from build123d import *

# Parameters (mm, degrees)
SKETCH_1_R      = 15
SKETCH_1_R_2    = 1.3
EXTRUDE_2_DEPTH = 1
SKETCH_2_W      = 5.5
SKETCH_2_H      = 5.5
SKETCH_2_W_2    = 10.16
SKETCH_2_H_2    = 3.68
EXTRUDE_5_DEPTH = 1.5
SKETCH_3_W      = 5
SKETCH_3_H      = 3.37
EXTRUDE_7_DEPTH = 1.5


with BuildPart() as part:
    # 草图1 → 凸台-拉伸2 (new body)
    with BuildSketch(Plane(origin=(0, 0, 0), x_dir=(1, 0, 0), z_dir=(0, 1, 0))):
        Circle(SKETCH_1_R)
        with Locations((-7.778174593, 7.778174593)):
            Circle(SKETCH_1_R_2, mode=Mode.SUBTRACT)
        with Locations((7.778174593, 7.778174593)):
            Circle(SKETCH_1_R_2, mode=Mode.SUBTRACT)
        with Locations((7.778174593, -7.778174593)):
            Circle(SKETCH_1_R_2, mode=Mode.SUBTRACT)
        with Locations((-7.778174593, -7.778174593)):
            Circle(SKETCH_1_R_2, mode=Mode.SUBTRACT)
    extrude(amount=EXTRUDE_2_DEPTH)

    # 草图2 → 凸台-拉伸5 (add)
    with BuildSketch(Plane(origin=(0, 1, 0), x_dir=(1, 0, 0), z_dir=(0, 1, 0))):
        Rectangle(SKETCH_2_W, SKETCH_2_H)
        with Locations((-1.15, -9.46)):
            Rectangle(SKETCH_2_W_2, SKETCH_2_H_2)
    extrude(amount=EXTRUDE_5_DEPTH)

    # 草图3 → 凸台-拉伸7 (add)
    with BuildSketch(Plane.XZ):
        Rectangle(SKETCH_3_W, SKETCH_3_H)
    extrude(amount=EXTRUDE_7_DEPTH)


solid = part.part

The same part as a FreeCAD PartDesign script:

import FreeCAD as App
import Part
import Sketcher


def add_polygon(sketch, points):
    """Adds a closed chain of lines whose ends are joined by coincident constraints."""
    first, n = sketch.GeometryCount, len(points)
    for a, b in zip(points, points[1:] + points[:1]):
        sketch.addGeometry(Part.LineSegment(App.Vector(*a, 0), App.Vector(*b, 0)), False)
    for i in range(n):
        sketch.addConstraint(Sketcher.Constraint("Coincident", first + i, 2, first + (i + 1) % n, 1))

doc = App.newDocument("Part")
params = doc.addObject("Spreadsheet::Sheet", "Params")
for row, (alias, value) in enumerate([
    ("sketch1_diameter", "30 mm"),
    ("sketch1_diameter2", "2.6 mm"),
    ("pad1_length", "1 mm"),
    ("sketch2_width", "5.5 mm"),
    ("sketch2_width2", "10.16 mm"),
    ("sketch2_height", "3.68 mm"),
    ("pad2_length", "1.5 mm"),
    ("sketch3_width", "5 mm"),
    ("sketch3_height", "3.37 mm"),
    ("pad3_length", "1.5 mm"),
], start=1):
    params.set(f"A{row}", alias)
    params.set(f"B{row}", "=" + value)
    params.setAlias(f"B{row}", alias)

body = doc.addObject("PartDesign::Body", "Body")

# Sketch on XZ plane
sketch1 = body.newObject("Sketcher::SketchObject", "Sketch")
sketch1.AttachmentSupport = (doc.getObject("XZ_Plane"), [""])
sketch1.MapMode = "FlatFace"
sketch1.addGeometry([
    Part.Circle(App.Vector(0, 0, 0), App.Vector(0, 0, 1), 15),  # 0
    Part.Circle(App.Vector(-7.8, 7.8, 0), App.Vector(0, 0, 1), 1.3),  # 1
    Part.Circle(App.Vector(7.8, 7.8, 0), App.Vector(0, 0, 1), 1.3),  # 2
    Part.Circle(App.Vector(-7.8, -7.8, 0), App.Vector(0, 0, 1), 1.3),  # 3
    Part.Circle(App.Vector(7.8, -7.8, 0), App.Vector(0, 0, 1), 1.3),  # 4
], False)
sketch1.addConstraint([
    Sketcher.Constraint("Coincident", 0, 3, -1, 1),
    Sketcher.Constraint("Equal", 1, 2),
    Sketcher.Constraint("Equal", 2, 3),
    Sketcher.Constraint("Equal", 3, 4),
    Sketcher.Constraint("Symmetric", 2, 3, 3, 3, -1, 1),
    Sketcher.Constraint("Symmetric", 1, 3, 4, 3, -1, 1),
    Sketcher.Constraint("Symmetric", 1, 3, 2, 3, -2),
    Sketcher.Constraint("Diameter", 0, 30.0),
    Sketcher.Constraint("Diameter", 1, 2.6),
    Sketcher.Constraint("DistanceX", 1, 3, 2, 3, 15.556349),
    Sketcher.Constraint("DistanceY", 3, 3, 1, 3, 15.556349),
])
sketch1.setExpression("Constraints[7]", "Params.sketch1_diameter")
sketch1.setExpression("Constraints[8]", "Params.sketch1_diameter2")
pad1 = body.newObject("PartDesign::Pad", "Pad")
pad1.Profile = sketch1
pad1.setExpression("Length", "Params.pad1_length")
pad1.Reversed = True

# Sketch on XZ plane
sketch2 = body.newObject("Sketcher::SketchObject", "Sketch001")
sketch2.AttachmentSupport = (doc.getObject("XZ_Plane"), [""])
sketch2.MapMode = "FlatFace"
sketch2.AttachmentOffset = App.Placement(App.Vector(0, 0, -1), App.Rotation())
add_polygon(sketch2, [(-2.8, -2.8), (-2.8, 2.8), (2.8, 2.8), (2.8, -2.8)])  # lines 0-3
add_polygon(sketch2, [(-6.2, 7.6), (-6.2, 11.3), (3.9, 11.3), (3.9, 7.6)])  # lines 4-7
sketch2.addConstraint([
    Sketcher.Constraint("Vertical", 0),
    Sketcher.Constraint("Horizontal", 1),
    Sketcher.Constraint("Vertical", 2),
    Sketcher.Constraint("Horizontal", 3),
    Sketcher.Constraint("Vertical", 4),
    Sketcher.Constraint("Horizontal", 5),
    Sketcher.Constraint("Vertical", 6),
    Sketcher.Constraint("Horizontal", 7),
    Sketcher.Constraint("Symmetric", 0, 2, 2, 2, -1, 1),
    Sketcher.Constraint("Equal", 3, 0),
    Sketcher.Constraint("DistanceX", 1, 1, 1, 2, 5.5),
    Sketcher.Constraint("DistanceX", 5, 1, 5, 2, 10.16),
    Sketcher.Constraint("DistanceY", 4, 1, 4, 2, 3.68),
    Sketcher.Constraint("DistanceY", -1, 1, 4, 2, 11.3),
    Sketcher.Constraint("DistanceX", 4, 2, -1, 1, 6.23),
])
sketch2.setExpression("Constraints[18]", "Params.sketch2_width")
sketch2.setExpression("Constraints[19]", "Params.sketch2_width2")
sketch2.setExpression("Constraints[20]", "Params.sketch2_height")
pad2 = body.newObject("PartDesign::Pad", "Pad001")
pad2.Profile = sketch2
pad2.setExpression("Length", "Params.pad2_length")
pad2.Reversed = True

# Sketch on XZ plane
sketch3 = body.newObject("Sketcher::SketchObject", "Sketch002")
sketch3.AttachmentSupport = (doc.getObject("XZ_Plane"), [""])
sketch3.MapMode = "FlatFace"
add_polygon(sketch3, [(-2.5, 1.7), (-2.5, -1.7), (2.5, -1.7), (2.5, 1.7)])  # lines 0-3
sketch3.addConstraint([
    Sketcher.Constraint("Vertical", 0),
    Sketcher.Constraint("Horizontal", 1),
    Sketcher.Constraint("Vertical", 2),
    Sketcher.Constraint("Horizontal", 3),
    Sketcher.Constraint("Symmetric", 0, 2, 2, 2, -1, 1),
    Sketcher.Constraint("DistanceX", 1, 1, 1, 2, 5.0),
    Sketcher.Constraint("DistanceY", 0, 2, 0, 1, 3.37),
])
sketch3.setExpression("Constraints[9]", "Params.sketch3_width")
sketch3.setExpression("Constraints[10]", "Params.sketch3_height")
pad3 = body.newObject("PartDesign::Pad", "Pad002")
pad3.Profile = sketch3
pad3.setExpression("Length", "Params.pad3_length")

doc.recompute()
